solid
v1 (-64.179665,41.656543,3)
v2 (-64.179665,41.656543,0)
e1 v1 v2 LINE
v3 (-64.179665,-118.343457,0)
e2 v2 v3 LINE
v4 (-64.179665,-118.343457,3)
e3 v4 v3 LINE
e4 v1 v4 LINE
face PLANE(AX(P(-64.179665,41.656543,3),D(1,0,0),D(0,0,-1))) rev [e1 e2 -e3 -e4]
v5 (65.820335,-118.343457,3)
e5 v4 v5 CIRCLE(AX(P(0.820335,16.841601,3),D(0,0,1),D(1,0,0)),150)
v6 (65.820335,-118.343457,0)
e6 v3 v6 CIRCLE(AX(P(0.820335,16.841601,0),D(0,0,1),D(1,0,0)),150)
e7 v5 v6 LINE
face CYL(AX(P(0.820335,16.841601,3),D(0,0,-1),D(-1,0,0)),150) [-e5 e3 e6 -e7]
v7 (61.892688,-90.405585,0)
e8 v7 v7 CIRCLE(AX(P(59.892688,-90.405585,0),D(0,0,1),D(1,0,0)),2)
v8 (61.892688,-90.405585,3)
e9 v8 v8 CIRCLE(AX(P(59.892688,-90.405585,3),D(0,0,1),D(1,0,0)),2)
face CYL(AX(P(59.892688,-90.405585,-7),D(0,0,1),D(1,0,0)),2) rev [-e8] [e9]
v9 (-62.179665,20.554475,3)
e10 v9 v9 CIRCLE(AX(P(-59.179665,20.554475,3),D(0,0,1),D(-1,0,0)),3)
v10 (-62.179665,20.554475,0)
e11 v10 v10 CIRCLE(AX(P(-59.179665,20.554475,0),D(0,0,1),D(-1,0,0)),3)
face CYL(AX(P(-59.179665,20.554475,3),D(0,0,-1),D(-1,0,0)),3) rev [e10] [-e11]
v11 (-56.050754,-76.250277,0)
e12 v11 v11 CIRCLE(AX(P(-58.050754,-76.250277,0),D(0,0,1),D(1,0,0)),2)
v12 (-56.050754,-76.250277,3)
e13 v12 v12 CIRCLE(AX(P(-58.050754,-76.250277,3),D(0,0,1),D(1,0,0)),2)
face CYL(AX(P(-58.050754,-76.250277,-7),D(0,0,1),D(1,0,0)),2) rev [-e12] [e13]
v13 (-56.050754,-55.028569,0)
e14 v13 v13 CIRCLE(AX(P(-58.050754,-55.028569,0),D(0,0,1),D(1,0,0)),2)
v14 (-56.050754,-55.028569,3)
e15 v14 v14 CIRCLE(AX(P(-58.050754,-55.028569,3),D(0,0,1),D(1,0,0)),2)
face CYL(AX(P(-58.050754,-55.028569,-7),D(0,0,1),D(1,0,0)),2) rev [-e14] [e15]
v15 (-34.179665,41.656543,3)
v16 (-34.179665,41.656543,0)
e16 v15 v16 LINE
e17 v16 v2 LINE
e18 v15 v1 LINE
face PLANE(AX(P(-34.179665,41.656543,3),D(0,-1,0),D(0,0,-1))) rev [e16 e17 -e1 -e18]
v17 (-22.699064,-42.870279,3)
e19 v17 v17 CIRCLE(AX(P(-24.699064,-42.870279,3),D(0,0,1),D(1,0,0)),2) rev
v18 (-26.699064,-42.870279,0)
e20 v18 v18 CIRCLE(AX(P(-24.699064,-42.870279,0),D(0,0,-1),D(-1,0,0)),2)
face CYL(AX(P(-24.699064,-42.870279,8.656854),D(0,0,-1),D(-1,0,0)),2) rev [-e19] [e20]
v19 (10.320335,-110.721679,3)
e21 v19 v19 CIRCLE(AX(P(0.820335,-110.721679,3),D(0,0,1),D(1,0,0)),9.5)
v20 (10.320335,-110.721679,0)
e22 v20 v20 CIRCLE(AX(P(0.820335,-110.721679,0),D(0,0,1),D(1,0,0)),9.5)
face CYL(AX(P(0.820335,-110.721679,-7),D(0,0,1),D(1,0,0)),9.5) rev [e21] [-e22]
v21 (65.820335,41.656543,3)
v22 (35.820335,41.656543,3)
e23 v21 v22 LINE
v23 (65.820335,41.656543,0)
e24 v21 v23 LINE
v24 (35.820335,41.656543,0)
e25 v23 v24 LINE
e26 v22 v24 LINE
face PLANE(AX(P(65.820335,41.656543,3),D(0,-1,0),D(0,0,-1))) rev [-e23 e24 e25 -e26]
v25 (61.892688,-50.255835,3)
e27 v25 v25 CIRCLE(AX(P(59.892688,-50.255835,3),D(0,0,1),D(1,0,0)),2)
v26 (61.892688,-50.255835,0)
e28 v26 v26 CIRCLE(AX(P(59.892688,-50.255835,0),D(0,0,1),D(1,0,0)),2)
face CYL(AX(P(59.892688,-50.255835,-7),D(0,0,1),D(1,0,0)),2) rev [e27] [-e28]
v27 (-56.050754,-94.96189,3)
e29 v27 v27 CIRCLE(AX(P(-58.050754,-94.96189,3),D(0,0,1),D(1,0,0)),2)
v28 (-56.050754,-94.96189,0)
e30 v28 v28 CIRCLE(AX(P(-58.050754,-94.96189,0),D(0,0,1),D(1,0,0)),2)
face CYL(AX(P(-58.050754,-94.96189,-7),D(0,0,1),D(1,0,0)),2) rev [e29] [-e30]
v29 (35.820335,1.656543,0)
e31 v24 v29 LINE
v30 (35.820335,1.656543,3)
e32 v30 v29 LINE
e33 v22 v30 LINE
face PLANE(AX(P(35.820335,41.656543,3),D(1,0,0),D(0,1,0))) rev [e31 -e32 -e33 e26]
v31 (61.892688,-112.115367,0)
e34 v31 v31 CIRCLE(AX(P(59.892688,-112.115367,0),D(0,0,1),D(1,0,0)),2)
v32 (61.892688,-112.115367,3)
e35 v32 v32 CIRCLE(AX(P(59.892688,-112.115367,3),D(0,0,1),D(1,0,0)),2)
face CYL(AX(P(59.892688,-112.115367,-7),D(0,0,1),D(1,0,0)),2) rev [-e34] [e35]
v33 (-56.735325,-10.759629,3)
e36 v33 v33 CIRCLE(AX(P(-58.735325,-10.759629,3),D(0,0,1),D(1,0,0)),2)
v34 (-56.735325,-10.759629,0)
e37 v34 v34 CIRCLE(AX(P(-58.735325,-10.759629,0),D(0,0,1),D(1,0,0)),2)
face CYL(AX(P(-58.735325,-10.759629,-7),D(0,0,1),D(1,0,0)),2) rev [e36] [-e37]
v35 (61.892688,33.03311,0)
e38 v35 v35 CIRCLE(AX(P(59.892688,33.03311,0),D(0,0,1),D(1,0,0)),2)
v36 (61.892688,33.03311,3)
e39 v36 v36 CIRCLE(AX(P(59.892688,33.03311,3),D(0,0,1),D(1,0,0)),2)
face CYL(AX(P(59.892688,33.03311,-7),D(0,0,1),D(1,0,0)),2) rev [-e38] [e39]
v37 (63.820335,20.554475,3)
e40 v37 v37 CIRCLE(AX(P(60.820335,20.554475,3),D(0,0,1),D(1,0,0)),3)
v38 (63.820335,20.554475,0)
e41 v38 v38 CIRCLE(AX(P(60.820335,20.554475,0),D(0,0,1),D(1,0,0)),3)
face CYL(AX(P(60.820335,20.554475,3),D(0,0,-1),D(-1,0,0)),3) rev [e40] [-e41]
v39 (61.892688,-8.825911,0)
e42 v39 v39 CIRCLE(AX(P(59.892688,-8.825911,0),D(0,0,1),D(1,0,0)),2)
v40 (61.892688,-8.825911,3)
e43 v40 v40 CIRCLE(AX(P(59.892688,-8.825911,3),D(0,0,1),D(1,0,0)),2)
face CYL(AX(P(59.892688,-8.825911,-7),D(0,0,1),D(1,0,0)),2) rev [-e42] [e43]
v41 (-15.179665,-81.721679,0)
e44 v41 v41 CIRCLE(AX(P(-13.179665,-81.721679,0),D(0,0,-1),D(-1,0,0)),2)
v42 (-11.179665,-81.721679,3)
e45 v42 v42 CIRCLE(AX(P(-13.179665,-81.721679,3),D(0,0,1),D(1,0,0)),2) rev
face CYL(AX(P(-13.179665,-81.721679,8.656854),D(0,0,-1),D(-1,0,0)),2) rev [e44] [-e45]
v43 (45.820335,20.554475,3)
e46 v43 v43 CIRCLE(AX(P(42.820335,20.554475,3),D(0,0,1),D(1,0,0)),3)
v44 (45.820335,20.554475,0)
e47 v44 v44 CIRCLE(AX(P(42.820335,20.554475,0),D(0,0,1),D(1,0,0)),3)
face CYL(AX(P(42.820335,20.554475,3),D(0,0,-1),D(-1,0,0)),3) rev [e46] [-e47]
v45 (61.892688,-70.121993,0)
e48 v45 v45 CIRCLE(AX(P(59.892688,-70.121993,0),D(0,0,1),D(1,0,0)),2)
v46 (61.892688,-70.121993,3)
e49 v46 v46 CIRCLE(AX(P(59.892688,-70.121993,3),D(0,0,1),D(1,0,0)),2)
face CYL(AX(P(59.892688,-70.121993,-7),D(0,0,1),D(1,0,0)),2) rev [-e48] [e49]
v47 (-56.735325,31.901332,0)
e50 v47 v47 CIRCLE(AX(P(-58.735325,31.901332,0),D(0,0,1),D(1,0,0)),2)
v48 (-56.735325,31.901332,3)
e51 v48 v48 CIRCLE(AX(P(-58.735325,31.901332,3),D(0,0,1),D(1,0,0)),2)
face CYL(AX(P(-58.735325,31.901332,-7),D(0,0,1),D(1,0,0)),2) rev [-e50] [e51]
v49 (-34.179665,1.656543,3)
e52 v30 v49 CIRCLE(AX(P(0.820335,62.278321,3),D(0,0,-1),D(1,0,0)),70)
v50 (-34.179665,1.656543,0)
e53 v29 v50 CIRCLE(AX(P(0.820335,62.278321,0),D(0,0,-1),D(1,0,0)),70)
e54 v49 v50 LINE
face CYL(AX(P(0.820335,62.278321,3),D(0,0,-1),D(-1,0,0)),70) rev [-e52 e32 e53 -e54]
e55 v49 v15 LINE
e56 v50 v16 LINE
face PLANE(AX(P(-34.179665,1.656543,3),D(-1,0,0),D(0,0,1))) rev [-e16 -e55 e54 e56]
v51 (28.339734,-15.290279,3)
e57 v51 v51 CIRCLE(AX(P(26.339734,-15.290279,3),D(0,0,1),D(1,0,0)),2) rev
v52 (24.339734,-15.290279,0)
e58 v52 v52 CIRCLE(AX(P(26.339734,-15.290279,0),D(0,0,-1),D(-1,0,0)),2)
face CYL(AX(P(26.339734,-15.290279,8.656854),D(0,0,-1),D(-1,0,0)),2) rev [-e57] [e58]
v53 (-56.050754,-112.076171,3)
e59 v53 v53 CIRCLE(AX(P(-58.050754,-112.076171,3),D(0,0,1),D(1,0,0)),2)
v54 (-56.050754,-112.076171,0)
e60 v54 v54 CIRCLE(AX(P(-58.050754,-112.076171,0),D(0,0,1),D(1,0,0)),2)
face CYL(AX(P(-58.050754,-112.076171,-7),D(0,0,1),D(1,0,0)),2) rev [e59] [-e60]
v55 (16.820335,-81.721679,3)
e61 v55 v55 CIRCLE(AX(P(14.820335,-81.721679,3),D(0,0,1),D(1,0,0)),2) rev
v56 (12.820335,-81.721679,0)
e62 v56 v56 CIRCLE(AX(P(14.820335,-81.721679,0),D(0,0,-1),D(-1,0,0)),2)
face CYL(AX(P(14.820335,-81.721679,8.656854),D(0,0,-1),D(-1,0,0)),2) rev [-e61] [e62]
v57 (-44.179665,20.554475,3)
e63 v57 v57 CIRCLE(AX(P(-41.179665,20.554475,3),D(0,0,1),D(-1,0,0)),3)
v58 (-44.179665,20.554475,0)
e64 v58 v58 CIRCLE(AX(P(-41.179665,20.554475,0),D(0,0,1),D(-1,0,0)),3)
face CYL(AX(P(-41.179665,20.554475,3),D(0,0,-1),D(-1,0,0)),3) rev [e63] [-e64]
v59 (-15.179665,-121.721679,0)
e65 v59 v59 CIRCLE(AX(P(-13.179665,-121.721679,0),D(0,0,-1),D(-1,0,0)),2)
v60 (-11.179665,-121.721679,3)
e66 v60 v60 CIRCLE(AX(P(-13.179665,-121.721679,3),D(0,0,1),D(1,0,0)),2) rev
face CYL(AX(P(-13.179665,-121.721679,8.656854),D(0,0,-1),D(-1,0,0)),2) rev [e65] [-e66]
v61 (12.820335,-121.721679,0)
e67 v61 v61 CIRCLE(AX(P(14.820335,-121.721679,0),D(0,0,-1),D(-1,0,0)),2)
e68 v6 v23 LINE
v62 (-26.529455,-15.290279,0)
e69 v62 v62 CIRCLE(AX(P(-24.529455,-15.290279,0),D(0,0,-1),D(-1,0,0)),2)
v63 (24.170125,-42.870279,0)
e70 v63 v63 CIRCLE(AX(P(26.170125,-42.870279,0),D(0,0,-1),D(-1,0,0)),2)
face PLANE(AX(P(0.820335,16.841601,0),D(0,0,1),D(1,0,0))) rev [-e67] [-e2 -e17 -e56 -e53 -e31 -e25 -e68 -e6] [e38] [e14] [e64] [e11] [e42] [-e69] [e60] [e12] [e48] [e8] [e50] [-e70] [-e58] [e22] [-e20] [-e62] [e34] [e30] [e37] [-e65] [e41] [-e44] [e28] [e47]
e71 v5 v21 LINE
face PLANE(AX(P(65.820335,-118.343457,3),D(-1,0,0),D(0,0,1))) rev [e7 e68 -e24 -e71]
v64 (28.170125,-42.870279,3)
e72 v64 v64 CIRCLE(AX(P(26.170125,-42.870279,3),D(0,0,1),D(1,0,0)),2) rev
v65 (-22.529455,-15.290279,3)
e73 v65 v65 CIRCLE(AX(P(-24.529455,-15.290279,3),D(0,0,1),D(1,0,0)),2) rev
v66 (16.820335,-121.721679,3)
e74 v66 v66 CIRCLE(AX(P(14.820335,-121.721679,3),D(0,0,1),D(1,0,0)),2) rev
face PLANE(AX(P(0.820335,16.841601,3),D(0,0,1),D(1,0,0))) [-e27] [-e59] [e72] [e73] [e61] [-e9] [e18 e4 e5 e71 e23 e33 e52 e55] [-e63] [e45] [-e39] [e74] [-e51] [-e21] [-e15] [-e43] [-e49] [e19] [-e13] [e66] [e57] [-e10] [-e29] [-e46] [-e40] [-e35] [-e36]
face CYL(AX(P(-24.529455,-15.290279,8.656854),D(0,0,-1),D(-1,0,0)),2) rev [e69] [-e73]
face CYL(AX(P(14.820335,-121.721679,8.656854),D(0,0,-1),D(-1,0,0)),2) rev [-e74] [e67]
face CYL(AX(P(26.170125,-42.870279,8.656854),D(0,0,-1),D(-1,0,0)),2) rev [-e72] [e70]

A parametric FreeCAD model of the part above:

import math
import FreeCAD as App
import Part
import Sketcher
from FreeCAD import Vector

doc = App.newDocument("Part")
params = doc.addObject("Spreadsheet::Sheet", "Params")
for row, (alias, value) in enumerate([
    ("sketch1_diameter", "6 mm"),
    ("sketch1_radius", "150 mm"),
    ("sketch1_radius2", "70 mm"),
    ("sketch1_width", "30 mm"),
    ("sketch1_height", "40 mm"),
    ("pad1_length", "3 mm"),
    ("sketch2_diameter", "19 mm"),
    ("pocket1_length", "10 mm"),
    ("sketch3_diameter", "4 mm"),
    ("pocket2_length", "3 mm"),
    ("sketch4_diameter", "4 mm"),
    ("pocket3_length", "3 mm"),
    ("sketch5_diameter", "4 mm"),
    ("pocket4_length", "10 mm"),
], start=1):
    params.set(f"A{row}", alias)
    params.set(f"B{row}", "=" + value)
    params.setAlias(f"B{row}", alias)

body = doc.addObject("PartDesign::Body", "Body")

# Sketch on XY plane
sketch1 = body.newObject("Sketcher::SketchObject", "Sketch")
sketch1.AttachmentSupport = (doc.getObject("XY_Plane"), [""])
sketch1.MapMode = "FlatFace"
sketch1.addGeometry(Part.LineSegment(Vector(-34.2, 1.7, 0), Vector(-34.2, 41.7, 0)), False)
sketch1.addGeometry(Part.LineSegment(Vector(-34.2, 41.7, 0), Vector(-64.2, 41.7, 0)), False)
sketch1.addGeometry(Part.LineSegment(Vector(-64.2, 41.7, 0), Vector(-64.2, -118.3, 0)), False)
sketch1.addGeometry(Part.ArcOfCircle(Part.Circle(Vector(0.8, 16.8, 0), Vector(0, 0, 1), 150), math.radians(-116), math.radians(-64)), False)
sketch1.addGeometry(Part.LineSegment(Vector(65.8, -118.3, 0), Vector(65.8, 41.7, 0)), False)
sketch1.addGeometry(Part.LineSegment(Vector(65.8, 41.7, 0), Vector(35.8, 41.7, 0)), False)
sketch1.addGeometry(Part.LineSegment(Vector(35.8, 41.7, 0), Vector(35.8, 1.7, 0)), False)
sketch1.addGeometry(Part.ArcOfCircle(Part.Circle(Vector(0.8, 62.3, 0), Vector(0, 0, 1), 70), math.radians(-120), math.radians(-60)), False)
sketch1.addGeometry(Part.Circle(Vector(-59.2, 20.6, 0), Vector(0, 0, 1), 3), False)
sketch1.addGeometry(Part.Circle(Vector(-41.2, 20.6, 0), Vector(0, 0, 1), 3), False)
sketch1.addGeometry(Part.Circle(Vector(42.8, 20.6, 0), Vector(0, 0, 1), 3), False)
sketch1.addGeometry(Part.Circle(Vector(60.8, 20.6, 0), Vector(0, 0, 1), 3), False)
sketch1.addConstraint(Sketcher.Constraint("Coincident", 0, 2, 1, 1))
sketch1.addConstraint(Sketcher.Constraint("Coincident", 1, 2, 2, 1))
sketch1.addConstraint(Sketcher.Constraint("Coincident", 2, 2, 3, 1))
sketch1.addConstraint(Sketcher.Constraint("Coincident", 3, 2, 4, 1))
sketch1.addConstraint(Sketcher.Constraint("Coincident", 4, 2, 5, 1))
sketch1.addConstraint(Sketcher.Constraint("Coincident", 5, 2, 6, 1))
sketch1.addConstraint(Sketcher.Constraint("Coincident", 6, 2, 7, 2))
sketch1.addConstraint(Sketcher.Constraint("Coincident", 7, 1, 0, 1))
sketch1.addConstraint(Sketcher.Constraint("Vertical", 0))
sketch1.addConstraint(Sketcher.Constraint("Horizontal", 1))
sketch1.addConstraint(Sketcher.Constraint("Vertical", 2))
sketch1.addConstraint(Sketcher.Constraint("Vertical", 4))
sketch1.addConstraint(Sketcher.Constraint("Horizontal", 5))
sketch1.addConstraint(Sketcher.Constraint("Vertical", 6))
sketch1.addConstraint(Sketcher.Constraint("Equal", 8, 9))
sketch1.addConstraint(Sketcher.Constraint("Equal", 9, 10))
sketch1.addConstraint(Sketcher.Constraint("Equal", 10, 11))
sketch1.addConstraint(Sketcher.Constraint("Horizontal", 8, 3, 9, 3))
sketch1.addConstraint(Sketcher.Constraint("Horizontal", 9, 3, 10, 3))
sketch1.addConstraint(Sketcher.Constraint("Horizontal", 10, 3, 11, 3))
sketch1.addConstraint(Sketcher.Constraint("Horizontal", 2, 2, 3, 2))
sketch1.addConstraint(Sketcher.Constraint("Horizontal", 1, 2, 4, 2))
sketch1.addConstraint(Sketcher.Constraint("Horizontal", 6, 2, 7, 1))
sketch1.addConstraint(Sketcher.Constraint("Vertical", 3, 3, 7, 3))
sketch1.addConstraint(Sketcher.Constraint("Diameter", 8, 6.0))
sketch1.addConstraint(Sketcher.Constraint("Radius", 3, 150.0))
sketch1.addConstraint(Sketcher.Constraint("Radius", 7, 70.0))
sketch1.addConstraint(Sketcher.Constraint("DistanceX", 1, 2, 1, 1, 30.0))
sketch1.addConstraint(Sketcher.Constraint("DistanceY", 0, 1, 0, 2, 40.0))
sketch1.addConstraint(Sketcher.Constraint("DistanceY", 2, 2, 2, 1, 160.0))
sketch1.addConstraint(Sketcher.Constraint("DistanceX", 8, 3, 3, 3, 60.0))
sketch1.addConstraint(Sketcher.Constraint("DistanceX", 8, 3, 9, 3, 18.0))
sketch1.addConstraint(Sketcher.Constraint("DistanceX", 3, 3, 10, 3, 42.0))
sketch1.addConstraint(Sketcher.Constraint("DistanceX", 10, 3, 11, 3, 18.0))
sketch1.addConstraint(Sketcher.Constraint("DistanceX", 9, 3, 0, 2, 7.0))
sketch1.addConstraint(Sketcher.Constraint("DistanceY", -1, 1, 3, 3, 16.841601))
sketch1.addConstraint(Sketcher.Constraint("DistanceY", 9, 3, 0, 2, 21.102068))
sketch1.addConstraint(Sketcher.Constraint("DistanceX", -1, 1, 3, 3, 0.820335))
sketch1.setExpression("Constraints[24]", "Params.sketch1_diameter")
sketch1.setExpression("Constraints[25]", "Params.sketch1_radius")
sketch1.setExpression("Constraints[26]", "Params.sketch1_radius2")
sketch1.setExpression("Constraints[27]", "Params.sketch1_width")
sketch1.setExpression("Constraints[28]", "Params.sketch1_height")
pad1 = body.newObject("PartDesign::Pad", "Pad")
pad1.Profile = sketch1
pad1.setExpression("Length", "Params.pad1_length")

# Sketch on XY plane
sketch2 = body.newObject("Sketcher::SketchObject", "Sketch001")
sketch2.AttachmentSupport = (doc.getObject("XY_Plane"), [""])
sketch2.MapMode = "FlatFace"
sketch2.AttachmentOffset = App.Placement(Vector(0, 0, 3), App.Rotation())
sketch2.addGeometry(Part.Circle(Vector(1, -111, 0), Vector(0, 0, 1), 10), False)
sketch2.addConstraint(Sketcher.Constraint("Diameter", 0, 19.0))
sketch2.addConstraint(Sketcher.Constraint("DistanceY", 0, 3, -1, 1, 110.721679))
sketch2.addConstraint(Sketcher.Constraint("DistanceX", -1, 1, 0, 3, 0.820335))
sketch2.setExpression("Constraints[0]", "Params.sketch2_diameter")
pocket1 = body.newObject("PartDesign::Pocket", "Pocket")
pocket1.Profile = sketch2
pocket1.setExpression("Length", "Params.pocket1_length")

# Sketch on XY plane
sketch3 = body.newObject("Sketcher::SketchObject", "Sketch002")
sketch3.AttachmentSupport = (doc.getObject("XY_Plane"), [""])
sketch3.MapMode = "FlatFace"
sketch3.addGeometry(Part.Circle(Vector(14.8, -121.7, 0), Vector(0, 0, 1), 2), False)
sketch3.addGeometry(Part.Circle(Vector(14.8, -81.7, 0), Vector(0, 0, 1), 2), False)
sketch3.addGeometry(Part.Circle(Vector(-13.2, -81.7, 0), Vector(0, 0, 1), 2), False)
sketch3.addGeometry(Part.Circle(Vector(-13.2, -121.7, 0), Vector(0, 0, 1), 2), False)
sketch3.addConstraint(Sketcher.Constraint("Equal", 0, 1))
sketch3.addConstraint(Sketcher.Constraint("Equal", 1, 2))
sketch3.addConstraint(Sketcher.Constraint("Equal", 2, 3))
sketch3.addConstraint(Sketcher.Constraint("Horizontal", 1, 3, 2, 3))
sketch3.addConstraint(Sketcher.Constraint("Horizontal", 0, 3, 3, 3))
sketch3.addConstraint(Sketcher.Constraint("Vertical", 0, 3, 1, 3))
sketch3.addConstraint(Sketcher.Constraint("Vertical", 2, 3, 3, 3))
sketch3.addConstraint(Sketcher.Constraint("Diameter", 0, 4.0))
sketch3.addConstraint(Sketcher.Constraint("DistanceY", 0, 3, 1, 3, 40.0))
sketch3.addConstraint(Sketcher.Constraint("DistanceX", 2, 3, 1, 3, 28.0))
sketch3.addConstraint(Sketcher.Constraint("DistanceY", 0, 3, -1, 1, 121.721679))
sketch3.addConstraint(Sketcher.Constraint("DistanceX", -1, 1, 0, 3, 14.820335))
sketch3.setExpression("Constraints[7]", "Params.sketch3_diameter")
pocket2 = body.newObject("PartDesign::Pocket", "Pocket001")
pocket2.Profile = sketch3
pocket2.setExpression("Length", "Params.pocket2_length")
pocket2.Reversed = True

# Sketch on XY plane
sketch4 = body.newObject("Sketcher::SketchObject", "Sketch003")
sketch4.AttachmentSupport = (doc.getObject("XY_Plane"), [""])
sketch4.MapMode = "FlatFace"
sketch4.addGeometry(Part.Circle(Vector(26.2, -42.9, 0), Vector(0, 0, 1), 2), False)
sketch4.addGeometry(Part.Circle(Vector(26.3, -15.3, 0), Vector(0, 0, 1), 2), False)
sketch4.addGeometry(Part.Circle(Vector(-24.5, -15.3, 0), Vector(0, 0, 1), 2), False)
sketch4.addGeometry(Part.Circle(Vector(-24.7, -42.9, 0), Vector(0, 0, 1), 2), False)
sketch4.addConstraint(Sketcher.Constraint("Equal", 0, 1))
sketch4.addConstraint(Sketcher.Constraint("Equal", 1, 2))
sketch4.addConstraint(Sketcher.Constraint("Equal", 2, 3))
sketch4.addConstraint(Sketcher.Constraint("Horizontal", 1, 3, 2, 3))
sketch4.addConstraint(Sketcher.Constraint("Horizontal", 0, 3, 3, 3))
sketch4.addConstraint(Sketcher.Constraint("Diameter", 0, 4.0))
sketch4.addConstraint(Sketcher.Constraint("DistanceY", 0, 3, 1, 3, 27.58))
sketch4.addConstraint(Sketcher.Constraint("DistanceX", 3, 3, 1, 3, 51.038798))
sketch4.addConstraint(Sketcher.Constraint("DistanceY", 0, 3, -1, 1, 42.870279))
sketch4.addConstraint(Sketcher.Constraint("DistanceX", 0, 3, 1, 3, 0.16961))
sketch4.addConstraint(Sketcher.Constraint("DistanceX", 2, 3, 1, 3, 50.869189))
sketch4.addConstraint(Sketcher.Constraint("DistanceX", -1, 1, 0, 3, 26.170125))
sketch4.setExpression("Constraints[5]", "Params.sketch4_diameter")
pocket3 = body.newObject("PartDesign::Pocket", "Pocket002")
pocket3.Profile = sketch4
pocket3.setExpression("Length", "Params.pocket3_length")
pocket3.Reversed = True

# Sketch on XY plane
sketch5 = body.newObject("Sketcher::SketchObject", "Sketch004")
sketch5.AttachmentSupport = (doc.getObject("XY_Plane"), [""])
sketch5.MapMode = "FlatFace"
sketch5.AttachmentOffset = App.Placement(Vector(0, 0, 3), App.Rotation())
sketch5.addGeometry(Part.Circle(Vector(-58.1, -112.1, 0), Vector(0, 0, 1), 2), False)
sketch5.addGeometry(Part.Circle(Vector(-58.1, -95, 0), Vector(0, 0, 1), 2), False)
sketch5.addGeometry(Part.Circle(Vector(-58.1, -76.3, 0), Vector(0, 0, 1), 2), False)
sketch5.addGeometry(Part.Circle(Vector(-58.1, -55, 0), Vector(0, 0, 1), 2), False)
sketch5.addGeometry(Part.Circle(Vector(-58.7, -10.8, 0), Vector(0, 0, 1), 2), False)
sketch5.addGeometry(Part.Circle(Vector(-58.7, 31.9, 0), Vector(0, 0, 1), 2), False)
sketch5.addGeometry(Part.Circle(Vector(59.9, -112.1, 0), Vector(0, 0, 1), 2), False)
sketch5.addGeometry(Part.Circle(Vector(59.9, -90.4, 0), Vector(0, 0, 1), 2), False)
sketch5.addGeometry(Part.Circle(Vector(59.9, -70.1, 0), Vector(0, 0, 1), 2), False)
sketch5.addGeometry(Part.Circle(Vector(59.9, -50.3, 0), Vector(0, 0, 1), 2), False)
sketch5.addGeometry(Part.Circle(Vector(59.9, -8.8, 0), Vector(0, 0, 1), 2), False)
sketch5.addGeometry(Part.Circle(Vector(59.9, 33, 0), Vector(0, 0, 1), 2), False)
sketch5.addConstraint(Sketcher.Constraint("Equal", 0, 1))
sketch5.addConstraint(Sketcher.Constraint("Equal", 1, 2))
sketch5.addConstraint(Sketcher.Constraint("Equal", 2, 3))
sketch5.addConstraint(Sketcher.Constraint("Equal", 3, 4))
sketch5.addConstraint(Sketcher.Constraint("Equal", 4, 5))
sketch5.addConstraint(Sketcher.Constraint("Equal", 5, 6))
sketch5.addConstraint(Sketcher.Constraint("Equal", 6, 7))
sketch5.addConstraint(Sketcher.Constraint("Equal", 7, 8))
sketch5.addConstraint(Sketcher.Constraint("Equal", 8, 9))
sketch5.addConstraint(Sketcher.Constraint("Equal", 9, 10))
sketch5.addConstraint(Sketcher.Constraint("Equal", 10, 11))
sketch5.addConstraint(Sketcher.Constraint("Vertical", 0, 3, 1, 3))
sketch5.addConstraint(Sketcher.Constraint("Vertical", 1, 3, 2, 3))
sketch5.addConstraint(Sketcher.Constraint("Vertical", 2, 3, 3, 3))
sketch5.addConstraint(Sketcher.Constraint("Vertical", 4, 3, 5, 3))
sketch5.addConstraint(Sketcher.Constraint("Vertical", 6, 3, 7, 3))
sketch5.addConstraint(Sketcher.Constraint("Vertical", 7, 3, 8, 3))
sketch5.addConstraint(Sketcher.Constraint("Vertical", 8, 3, 9, 3))
sketch5.addConstraint(Sketcher.Constraint("Vertical", 9, 3, 10, 3))
sketch5.addConstraint(Sketcher.Constraint("Vertical", 10, 3, 11, 3))
sketch5.addConstraint(Sketcher.Constraint("Diameter", 0, 4.0))
sketch5.addConstraint(Sketcher.Constraint("DistanceY", 3, 3, 5, 3, 86.929901))
sketch5.addConstraint(Sketcher.Constraint("DistanceY", 6, 3, 3, 3, 57.086798))
sketch5.addConstraint(Sketcher.Constraint("DistanceY", 0, 3, -1, 1, 112.076171))
sketch5.addConstraint(Sketcher.Constraint("DistanceY", 1, 3, -1, 1, 94.96189))
sketch5.addConstraint(Sketcher.Constraint("DistanceY", 3, 3, -1, 1, 55.028569))
sketch5.addConstraint(Sketcher.Constraint("DistanceY", 4, 3, -1, 1, 10.759629))
sketch5.addConstraint(Sketcher.Constraint("DistanceY", 10, 3, -1, 1, 8.825911))
sketch5.addConstraint(Sketcher.Constraint("DistanceY", -1, 1, 11, 3, 33.03311))
sketch5.addConstraint(Sketcher.Constraint("DistanceY", 2, 3, 3, 3, 21.221708))
sketch5.addConstraint(Sketcher.Constraint("DistanceX", 4, 3, 3, 3, 0.684571))
sketch5.addConstraint(Sketcher.Constraint("DistanceX", 0, 3, 6, 3, 117.943441))
sketch5.addConstraint(Sketcher.Constraint("DistanceY", 6, 3, 7, 3, 21.709782))
sketch5.addConstraint(Sketcher.Constraint("DistanceY", 7, 3, 8, 3, 20.283592))
sketch5.addConstraint(Sketcher.Constraint("DistanceY", 7, 3, 9, 3, 40.149749))
sketch5.addConstraint(Sketcher.Constraint("DistanceX", 0, 3, -1, 1, 58.050754))
sketch5.setExpression("Constraints[20]", "Params.sketch5_diameter")
pocket4 = body.newObject("PartDesign::Pocket", "Pocket003")
pocket4.Profile = sketch5
pocket4.setExpression("Length", "Params.pocket4_length")

doc.recompute()
